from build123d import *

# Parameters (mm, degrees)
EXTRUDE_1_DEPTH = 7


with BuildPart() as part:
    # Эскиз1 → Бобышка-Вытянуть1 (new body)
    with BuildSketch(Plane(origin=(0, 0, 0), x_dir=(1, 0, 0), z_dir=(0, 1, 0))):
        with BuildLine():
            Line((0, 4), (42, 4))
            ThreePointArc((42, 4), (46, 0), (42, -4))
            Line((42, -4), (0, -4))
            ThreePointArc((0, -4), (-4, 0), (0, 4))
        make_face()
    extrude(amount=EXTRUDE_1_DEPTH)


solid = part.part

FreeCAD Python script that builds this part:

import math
import FreeCAD as App
import Part
import Sketcher

V = App.Vector

doc = App.newDocument("Part")
body = doc.addObject("PartDesign::Body", "Body")

# Sketch on XZ plane
sketch1 = body.newObject("Sketcher::SketchObject", "Sketch")
sketch1.AttachmentSupport = (doc.getObject("XZ_Plane"), [""])
sketch1.MapMode = "FlatFace"
sketch1.addGeometry([
    Part.LineSegment(V(42, -4, 0), V(0, -4, 0)),
    Part.ArcOfCircle(Part.Circle(V(0, 0, 0), V(0, 0, 1), 4), math.radians(90), math.radians(270)),
    Part.LineSegment(V(0, 4, 0), V(42, 4, 0)),
    Part.ArcOfCircle(Part.Circle(V(42, 0, 0), V(0, 0, 1), 4), math.radians(-90), math.radians(90)),
], False)
sketch1.addConstraint([
    Sketcher.Constraint("Tangent", 0, 2, 1, 2),
    Sketcher.Constraint("Tangent", 1, 1, 2, 1),
    Sketcher.Constraint("Tangent", 2, 2, 3, 2),
    Sketcher.Constraint("Tangent", 3, 1, 0, 1),
    Sketcher.Constraint("Horizontal", 0),
    Sketcher.Constraint("Horizontal", 2),
    Sketcher.Constraint("Coincident", 1, 3, -1, 1),
    Sketcher.Constraint("Radius", 1, 4.0),
    Sketcher.Constraint("DistanceX", 0, 2, 0, 1, 42.0),
])
pad1 = body.newObject("PartDesign::Pad", "Pad")
pad1.Profile = sketch1
pad1.Length = 7
pad1.Reversed = True

doc.recompute()
